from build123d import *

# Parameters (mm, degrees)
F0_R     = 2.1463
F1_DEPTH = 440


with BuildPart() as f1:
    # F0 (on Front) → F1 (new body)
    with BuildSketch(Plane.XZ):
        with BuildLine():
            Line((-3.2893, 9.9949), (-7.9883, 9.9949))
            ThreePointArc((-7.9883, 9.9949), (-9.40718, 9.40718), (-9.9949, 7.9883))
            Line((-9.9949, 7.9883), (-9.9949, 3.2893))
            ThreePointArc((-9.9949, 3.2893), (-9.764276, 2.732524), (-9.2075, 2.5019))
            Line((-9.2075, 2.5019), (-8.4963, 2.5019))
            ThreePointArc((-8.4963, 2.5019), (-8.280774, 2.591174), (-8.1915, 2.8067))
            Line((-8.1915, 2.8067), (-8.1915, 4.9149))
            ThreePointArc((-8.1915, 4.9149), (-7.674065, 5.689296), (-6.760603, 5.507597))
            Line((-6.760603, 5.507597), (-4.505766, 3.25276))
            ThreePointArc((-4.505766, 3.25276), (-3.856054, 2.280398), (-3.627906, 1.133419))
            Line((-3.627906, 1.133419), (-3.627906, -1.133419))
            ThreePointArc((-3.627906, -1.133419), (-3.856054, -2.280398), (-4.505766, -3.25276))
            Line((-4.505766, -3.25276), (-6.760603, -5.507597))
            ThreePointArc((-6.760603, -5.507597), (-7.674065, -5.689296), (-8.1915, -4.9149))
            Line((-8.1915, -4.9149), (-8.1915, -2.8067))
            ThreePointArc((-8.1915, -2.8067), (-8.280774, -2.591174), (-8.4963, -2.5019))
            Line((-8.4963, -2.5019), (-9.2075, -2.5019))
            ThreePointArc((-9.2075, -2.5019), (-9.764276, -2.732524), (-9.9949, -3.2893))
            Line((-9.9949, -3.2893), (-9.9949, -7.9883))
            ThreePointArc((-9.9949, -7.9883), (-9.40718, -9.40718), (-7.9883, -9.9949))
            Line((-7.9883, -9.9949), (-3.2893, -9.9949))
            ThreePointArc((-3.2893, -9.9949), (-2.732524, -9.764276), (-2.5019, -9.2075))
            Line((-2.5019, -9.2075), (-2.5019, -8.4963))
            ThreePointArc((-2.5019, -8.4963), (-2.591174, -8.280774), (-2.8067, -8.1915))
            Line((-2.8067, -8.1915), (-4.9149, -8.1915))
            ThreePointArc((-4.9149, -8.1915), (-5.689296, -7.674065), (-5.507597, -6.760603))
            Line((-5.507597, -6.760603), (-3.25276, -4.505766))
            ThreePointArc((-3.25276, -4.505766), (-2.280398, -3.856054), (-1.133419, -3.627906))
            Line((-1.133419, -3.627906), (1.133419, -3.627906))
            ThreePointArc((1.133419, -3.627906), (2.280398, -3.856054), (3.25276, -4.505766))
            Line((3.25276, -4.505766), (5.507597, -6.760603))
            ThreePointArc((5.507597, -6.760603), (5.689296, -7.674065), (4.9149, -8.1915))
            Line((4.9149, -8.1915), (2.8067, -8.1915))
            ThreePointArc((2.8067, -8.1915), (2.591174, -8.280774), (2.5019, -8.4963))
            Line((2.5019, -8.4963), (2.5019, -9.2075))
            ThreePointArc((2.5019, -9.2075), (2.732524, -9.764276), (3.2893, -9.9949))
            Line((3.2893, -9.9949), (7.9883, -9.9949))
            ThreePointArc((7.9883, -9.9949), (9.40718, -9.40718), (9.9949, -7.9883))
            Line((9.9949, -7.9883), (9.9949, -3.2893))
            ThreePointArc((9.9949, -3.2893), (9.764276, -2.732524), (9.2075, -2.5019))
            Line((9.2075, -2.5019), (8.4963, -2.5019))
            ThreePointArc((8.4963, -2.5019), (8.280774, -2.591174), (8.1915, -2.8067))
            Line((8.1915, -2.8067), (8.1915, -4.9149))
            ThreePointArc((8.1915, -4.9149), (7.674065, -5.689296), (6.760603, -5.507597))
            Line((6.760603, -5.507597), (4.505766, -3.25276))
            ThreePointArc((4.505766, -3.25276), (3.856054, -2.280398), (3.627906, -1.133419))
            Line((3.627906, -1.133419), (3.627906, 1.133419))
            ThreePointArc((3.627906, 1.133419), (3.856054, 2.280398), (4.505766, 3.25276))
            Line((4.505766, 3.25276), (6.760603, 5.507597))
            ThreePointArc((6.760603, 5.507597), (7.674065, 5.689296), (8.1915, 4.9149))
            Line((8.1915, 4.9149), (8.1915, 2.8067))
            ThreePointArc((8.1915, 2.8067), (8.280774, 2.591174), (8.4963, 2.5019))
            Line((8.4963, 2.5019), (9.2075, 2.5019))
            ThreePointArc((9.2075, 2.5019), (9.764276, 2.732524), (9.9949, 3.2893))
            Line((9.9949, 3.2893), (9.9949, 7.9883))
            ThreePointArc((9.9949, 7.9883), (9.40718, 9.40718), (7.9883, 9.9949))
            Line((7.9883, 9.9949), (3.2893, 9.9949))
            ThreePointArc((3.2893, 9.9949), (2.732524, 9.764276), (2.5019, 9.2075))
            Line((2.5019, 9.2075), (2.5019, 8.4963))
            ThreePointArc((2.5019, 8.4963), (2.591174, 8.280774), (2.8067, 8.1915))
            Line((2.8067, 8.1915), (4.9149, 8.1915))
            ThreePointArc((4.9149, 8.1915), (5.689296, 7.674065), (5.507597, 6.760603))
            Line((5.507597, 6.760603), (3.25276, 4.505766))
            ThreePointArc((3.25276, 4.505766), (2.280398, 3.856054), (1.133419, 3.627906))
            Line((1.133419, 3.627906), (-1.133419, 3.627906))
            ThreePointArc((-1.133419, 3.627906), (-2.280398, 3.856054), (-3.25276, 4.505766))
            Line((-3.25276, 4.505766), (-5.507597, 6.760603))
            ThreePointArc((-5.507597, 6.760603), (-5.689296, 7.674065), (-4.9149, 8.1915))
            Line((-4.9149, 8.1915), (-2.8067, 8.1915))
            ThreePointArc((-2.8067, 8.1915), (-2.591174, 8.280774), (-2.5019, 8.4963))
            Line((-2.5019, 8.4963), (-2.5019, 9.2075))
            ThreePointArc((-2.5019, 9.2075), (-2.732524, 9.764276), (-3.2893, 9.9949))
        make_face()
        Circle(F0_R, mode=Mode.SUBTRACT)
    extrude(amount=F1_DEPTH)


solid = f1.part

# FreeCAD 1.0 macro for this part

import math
import FreeCAD as App
import Part
import Sketcher

V = App.Vector
Q = App.Units.Quantity

doc = App.newDocument("Part")
body = doc.addObject("PartDesign::Body", "Body")

sketch1 = body.newObject("Sketcher::SketchObject", "Sketch")
sketch1.AttachmentSupport = (doc.getObject("XZ_Plane"), [""])
sketch1.MapMode = "FlatFace"
sketch1.addGeometry([
    Part.LineSegment(V(-3.29, 9.99, 0), V(-7.99, 9.99, 0)),
    Part.ArcOfCircle(Part.Circle(V(-7.99, 7.99, 0), V(0, 0, 1), 2.01), math.radians(90), math.radians(180)),
    Part.LineSegment(V(-9.99, 7.99, 0), V(-9.99, 3.29, 0)),
    Part.ArcOfCircle(Part.Circle(V(-9.21, 3.29, 0), V(0, 0, 1), 0.79), math.radians(180), math.radians(270)),
    Part.LineSegment(V(-9.21, 2.5, 0), V(-8.5, 2.5, 0)),
    Part.ArcOfCircle(Part.Circle(V(-8.5, 2.81, 0), V(0, 0, 1), 0.3), math.radians(-90), math.radians(0)),
    Part.LineSegment(V(-8.19, 2.81, 0), V(-8.19, 4.91, 0)),
    Part.ArcOfCircle(Part.Circle(V(-7.35, 4.91, 0), V(0, 0, 1), 0.84), math.radians(45), math.radians(180)),
    Part.LineSegment(V(-6.76, 5.51, 0), V(-4.51, 3.25, 0)),
    Part.ArcOfCircle(Part.Circle(V(-6.63, 1.13, 0), V(0, 0, 1), 3), math.radians(0), math.radians(45)),
    Part.LineSegment(V(-3.63, 1.13, 0), V(-3.63, -1.13, 0)),
    Part.ArcOfCircle(Part.Circle(V(-6.63, -1.13, 0), V(0, 0, 1), 3), math.radians(-45), math.radians(0)),
    Part.LineSegment(V(-4.51, -3.25, 0), V(-6.76, -5.51, 0)),
    Part.ArcOfCircle(Part.Circle(V(-7.35, -4.91, 0), V(0, 0, 1), 0.84), math.radians(180), math.radians(315)),
    Part.LineSegment(V(-8.19, -4.91, 0), V(-8.19, -2.81, 0)),
    Part.ArcOfCircle(Part.Circle(V(-8.5, -2.81, 0), V(0, 0, 1), 0.3), math.radians(0), math.radians(90)),
    Part.LineSegment(V(-8.5, -2.5, 0), V(-9.21, -2.5, 0)),
    Part.ArcOfCircle(Part.Circle(V(-9.21, -3.29, 0), V(0, 0, 1), 0.79), math.radians(90), math.radians(180)),
    Part.LineSegment(V(-9.99, -3.29, 0), V(-9.99, -7.99, 0)),
    Part.ArcOfCircle(Part.Circle(V(-7.99, -7.99, 0), V(0, 0, 1), 2.01), math.radians(-180), math.radians(-90)),
    Part.LineSegment(V(-7.99, -9.99, 0), V(-3.29, -9.99, 0)),
    Part.ArcOfCircle(Part.Circle(V(-3.29, -9.21, 0), V(0, 0, 1), 0.79), math.radians(-90), math.radians(0)),
    Part.LineSegment(V(-2.5, -9.21, 0), V(-2.5, -8.5, 0)),
    Part.ArcOfCircle(Part.Circle(V(-2.81, -8.5, 0), V(0, 0, 1), 0.3), math.radians(0), math.radians(90)),
    Part.LineSegment(V(-2.81, -8.19, 0), V(-4.91, -8.19, 0)),
    Part.ArcOfCircle(Part.Circle(V(-4.91, -7.35, 0), V(0, 0, 1), 0.84), math.radians(135), math.radians(270)),
    Part.LineSegment(V(-5.51, -6.76, 0), V(-3.25, -4.51, 0)),
    Part.ArcOfCircle(Part.Circle(V(-1.13, -6.63, 0), V(0, 0, 1), 3), math.radians(90), math.radians(135)),
    Part.LineSegment(V(-1.13, -3.63, 0), V(1.13, -3.63, 0)),
    Part.ArcOfCircle(Part.Circle(V(1.13, -6.63, 0), V(0, 0, 1), 3), math.radians(45), math.radians(90)),
    Part.LineSegment(V(3.25, -4.51, 0), V(5.51, -6.76, 0)),
    Part.ArcOfCircle(Part.Circle(V(4.91, -7.35, 0), V(0, 0, 1), 0.84), math.radians(-90), math.radians(45)),
    Part.LineSegment(V(4.91, -8.19, 0), V(2.81, -8.19, 0)),
    Part.ArcOfCircle(Part.Circle(V(2.81, -8.5, 0), V(0, 0, 1), 0.3), math.radians(90), math.radians(180)),
    Part.LineSegment(V(2.5, -8.5, 0), V(2.5, -9.21, 0)),
    Part.ArcOfCircle(Part.Circle(V(3.29, -9.21, 0), V(0, 0, 1), 0.79), math.radians(180), math.radians(270)),
    Part.LineSegment(V(3.29, -9.99, 0), V(7.99, -9.99, 0)),
    Part.ArcOfCircle(Part.Circle(V(7.99, -7.99, 0), V(0, 0, 1), 2.01), math.radians(-90), math.radians(0)),
    Part.LineSegment(V(9.99, -7.99, 0), V(9.99, -3.29, 0)),
    Part.ArcOfCircle(Part.Circle(V(9.21, -3.29, 0), V(0, 0, 1), 0.79), math.radians(0), math.radians(90)),
    Part.LineSegment(V(9.21, -2.5, 0), V(8.5, -2.5, 0)),
    Part.ArcOfCircle(Part.Circle(V(8.5, -2.81, 0), V(0, 0, 1), 0.3), math.radians(90), math.radians(180)),
    Part.LineSegment(V(8.19, -2.81, 0), V(8.19, -4.91, 0)),
    Part.ArcOfCircle(Part.Circle(V(7.35, -4.91, 0), V(0, 0, 1), 0.84), math.radians(-135), math.radians(0)),
    Part.LineSegment(V(6.76, -5.51, 0), V(4.51, -3.25, 0)),
    Part.ArcOfCircle(Part.Circle(V(6.63, -1.13, 0), V(0, 0, 1), 3), math.radians(180), math.radians(225)),
    Part.LineSegment(V(3.63, -1.13, 0), V(3.63, 1.13, 0)),
    Part.ArcOfCircle(Part.Circle(V(6.63, 1.13, 0), V(0, 0, 1), 3), math.radians(135), math.radians(180)),
    Part.LineSegment(V(4.51, 3.25, 0), V(6.76, 5.51, 0)),
    Part.ArcOfCircle(Part.Circle(V(7.35, 4.91, 0), V(0, 0, 1), 0.84), math.radians(0), math.radians(135)),
    Part.LineSegment(V(8.19, 4.91, 0), V(8.19, 2.81, 0)),
    Part.ArcOfCircle(Part.Circle(V(8.5, 2.81, 0), V(0, 0, 1), 0.3), math.radians(-180), math.radians(-90)),
    Part.LineSegment(V(8.5, 2.5, 0), V(9.21, 2.5, 0)),
    Part.ArcOfCircle(Part.Circle(V(9.21, 3.29, 0), V(0, 0, 1), 0.79), math.radians(-90), math.radians(0)),
    Part.LineSegment(V(9.99, 3.29, 0), V(9.99, 7.99, 0)),
    Part.ArcOfCircle(Part.Circle(V(7.99, 7.99, 0), V(0, 0, 1), 2.01), math.radians(0), math.radians(90)),
    Part.LineSegment(V(7.99, 9.99, 0), V(3.29, 9.99, 0)),
    Part.ArcOfCircle(Part.Circle(V(3.29, 9.21, 0), V(0, 0, 1), 0.79), math.radians(90), math.radians(180)),
    Part.LineSegment(V(2.5, 9.21, 0), V(2.5, 8.5, 0)),
    Part.ArcOfCircle(Part.Circle(V(2.81, 8.5, 0), V(0, 0, 1), 0.3), math.radians(-180), math.radians(-90)),
    Part.LineSegment(V(2.81, 8.19, 0), V(4.91, 8.19, 0)),
    Part.ArcOfCircle(Part.Circle(V(4.91, 7.35, 0), V(0, 0, 1), 0.84), math.radians(-45), math.radians(90)),
    Part.LineSegment(V(5.51, 6.76, 0), V(3.25, 4.51, 0)),
    Part.ArcOfCircle(Part.Circle(V(1.13, 6.63, 0), V(0, 0, 1), 3), math.radians(-90), math.radians(-45)),
    Part.LineSegment(V(1.13, 3.63, 0), V(-1.13, 3.63, 0)),
    Part.ArcOfCircle(Part.Circle(V(-1.13, 6.63, 0), V(0, 0, 1), 3), math.radians(-135), math.radians(-90)),
    Part.LineSegment(V(-3.25, 4.51, 0), V(-5.51, 6.76, 0)),
    Part.ArcOfCircle(Part.Circle(V(-4.91, 7.35, 0), V(0, 0, 1), 0.84), math.radians(90), math.radians(225)),
    Part.LineSegment(V(-4.91, 8.19, 0), V(-2.81, 8.19, 0)),
    Part.ArcOfCircle(Part.Circle(V(-2.81, 8.5, 0), V(0, 0, 1), 0.3), math.radians(-90), math.radians(0)),
    Part.LineSegment(V(-2.5, 8.5, 0), V(-2.5, 9.21, 0)),
    Part.ArcOfCircle(Part.Circle(V(-3.29, 9.21, 0), V(0, 0, 1), 0.79), math.radians(0), math.radians(90)),
    Part.Circle(V(0, 0, 0), V(0, 0, 1), 2.15),
], False)
sketch1.addConstraint([
    Sketcher.Constraint("Tangent", 0, 2, 1, 1),
    Sketcher.Constraint("Tangent", 1, 2, 2, 1),
    Sketcher.Constraint("Tangent", 2, 2, 3, 1),
    Sketcher.Constraint("Tangent", 3, 2, 4, 1),
    Sketcher.Constraint("Tangent", 4, 2, 5, 1),
    Sketcher.Constraint("Tangent", 5, 2, 6, 1),
    Sketcher.Constraint("Tangent", 6, 2, 7, 2),
    Sketcher.Constraint("Tangent", 7, 1, 8, 1),
    Sketcher.Constraint("Tangent", 8, 2, 9, 2),
    Sketcher.Constraint("Tangent", 9, 1, 10, 1),
    Sketcher.Constraint("Tangent", 10, 2, 11, 2),
    Sketcher.Constraint("Tangent", 11, 1, 12, 1),
    Sketcher.Constraint("Tangent", 12, 2, 13, 2),
    Sketcher.Constraint("Tangent", 13, 1, 14, 1),
    Sketcher.Constraint("Tangent", 14, 2, 15, 1),
    Sketcher.Constraint("Tangent", 15, 2, 16, 1),
    Sketcher.Constraint("Tangent", 16, 2, 17, 1),
    Sketcher.Constraint("Tangent", 17, 2, 18, 1),
    Sketcher.Constraint("Tangent", 18, 2, 19, 1),
    Sketcher.Constraint("Tangent", 19, 2, 20, 1),
    Sketcher.Constraint("Tangent", 20, 2, 21, 1),
    Sketcher.Constraint("Tangent", 21, 2, 22, 1),
    Sketcher.Constraint("Tangent", 22, 2, 23, 1),
    Sketcher.Constraint("Tangent", 23, 2, 24, 1),
    Sketcher.Constraint("Tangent", 24, 2, 25, 2),
    Sketcher.Constraint("Tangent", 25, 1, 26, 1),
    Sketcher.Constraint("Tangent", 26, 2, 27, 2),
    Sketcher.Constraint("Tangent", 27, 1, 28, 1),
    Sketcher.Constraint("Tangent", 28, 2, 29, 2),
    Sketcher.Constraint("Tangent", 29, 1, 30, 1),
    Sketcher.Constraint("Tangent", 30, 2, 31, 2),
    Sketcher.Constraint("Tangent", 31, 1, 32, 1),
    Sketcher.Constraint("Tangent", 32, 2, 33, 1),
    Sketcher.Constraint("Tangent", 33, 2, 34, 1),
    Sketcher.Constraint("Tangent", 34, 2, 35, 1),
    Sketcher.Constraint("Tangent", 35, 2, 36, 1),
    Sketcher.Constraint("Tangent", 36, 2, 37, 1),
    Sketcher.Constraint("Tangent", 37, 2, 38, 1),
    Sketcher.Constraint("Tangent", 38, 2, 39, 1),
    Sketcher.Constraint("Tangent", 39, 2, 40, 1),
    Sketcher.Constraint("Tangent", 40, 2, 41, 1),
    Sketcher.Constraint("Tangent", 41, 2, 42, 1),
    Sketcher.Constraint("Tangent", 42, 2, 43, 2),
    Sketcher.Constraint("Tangent", 43, 1, 44, 1),
    Sketcher.Constraint("Tangent", 44, 2, 45, 2),
    Sketcher.Constraint("Tangent", 45, 1, 46, 1),
    Sketcher.Constraint("Tangent", 46, 2, 47, 2),
    Sketcher.Constraint("Tangent", 47, 1, 48, 1),
    Sketcher.Constraint("Tangent", 48, 2, 49, 2),
    Sketcher.Constraint("Tangent", 49, 1, 50, 1),
    Sketcher.Constraint("Tangent", 50, 2, 51, 1),
    Sketcher.Constraint("Tangent", 51, 2, 52, 1),
    Sketcher.Constraint("Tangent", 52, 2, 53, 1),
    Sketcher.Constraint("Tangent", 53, 2, 54, 1),
    Sketcher.Constraint("Tangent", 54, 2, 55, 1),
    Sketcher.Constraint("Tangent", 55, 2, 56, 1),
    Sketcher.Constraint("Tangent", 56, 2, 57, 1),
    Sketcher.Constraint("Tangent", 57, 2, 58, 1),
    Sketcher.Constraint("Tangent", 58, 2, 59, 1),
    Sketcher.Constraint("Tangent", 59, 2, 60, 1),
    Sketcher.Constraint("Tangent", 60, 2, 61, 2),
    Sketcher.Constraint("Tangent", 61, 1, 62, 1),
    Sketcher.Constraint("Tangent", 62, 2, 63, 2),
    Sketcher.Constraint("Tangent", 63, 1, 64, 1),
    Sketcher.Constraint("Tangent", 64, 2, 65, 2),
    Sketcher.Constraint("Tangent", 65, 1, 66, 1),
    Sketcher.Constraint("Tangent", 66, 2, 67, 2),
    Sketcher.Constraint("Tangent", 67, 1, 68, 1),
    Sketcher.Constraint("Tangent", 68, 2, 69, 1),
    Sketcher.Constraint("Tangent", 69, 2, 70, 1),
    Sketcher.Constraint("Tangent", 70, 2, 71, 1),
    Sketcher.Constraint("Tangent", 71, 2, 0, 1),
    Sketcher.Constraint("Horizontal", 0),
    Sketcher.Constraint("Vertical", 2),
    Sketcher.Constraint("Horizontal", 4),
    Sketcher.Constraint("Vertical", 6),
    Sketcher.Constraint("Vertical", 10),
    Sketcher.Constraint("Vertical", 14),
    Sketcher.Constraint("Horizontal", 16),
    Sketcher.Constraint("Vertical", 18),
    Sketcher.Constraint("Horizontal", 20),
    Sketcher.Constraint("Vertical", 22),
    Sketcher.Constraint("Horizontal", 24),
    Sketcher.Constraint("Horizontal", 28),
    Sketcher.Constraint("Horizontal", 32),
    Sketcher.Constraint("Vertical", 34),
    Sketcher.Constraint("Horizontal", 36),
    Sketcher.Constraint("Vertical", 38),
    Sketcher.Constraint("Horizontal", 40),
    Sketcher.Constraint("Vertical", 42),
    Sketcher.Constraint("Vertical", 46),
    Sketcher.Constraint("Vertical", 50),
    Sketcher.Constraint("Horizontal", 52),
    Sketcher.Constraint("Vertical", 54),
    Sketcher.Constraint("Horizontal", 56),
    Sketcher.Constraint("Vertical", 58),
    Sketcher.Constraint("Horizontal", 60),
    Sketcher.Constraint("Horizontal", 64),
    Sketcher.Constraint("Horizontal", 68),
    Sketcher.Constraint("Vertical", 70),
    Sketcher.Constraint("Coincident", 72, 3, -1, 1),
    Sketcher.Constraint("Equal", 9, 11),
    Sketcher.Constraint("Equal", 7, 13),
    Sketcher.Constraint("Equal", 5, 15),
    Sketcher.Constraint("Equal", 3, 17),
    Sketcher.Constraint("Equal", 1, 19),
    Sketcher.Constraint("Equal", 17, 21),
    Sketcher.Constraint("Equal", 15, 23),
    Sketcher.Constraint("Equal", 13, 25),
    Sketcher.Constraint("Equal", 11, 27),
    Sketcher.Constraint("Equal", 27, 29),
    Sketcher.Constraint("Equal", 25, 31),
    Sketcher.Constraint("Equal", 23, 33),
    Sketcher.Constraint("Equal", 21, 35),
    Sketcher.Constraint("Equal", 19, 37),
    Sketcher.Constraint("Equal", 35, 39),
    Sketcher.Constraint("Equal", 33, 41),
    Sketcher.Constraint("Equal", 31, 43),
    Sketcher.Constraint("Equal", 29, 45),
    Sketcher.Constraint("Equal", 45, 47),
    Sketcher.Constraint("Equal", 43, 49),
    Sketcher.Constraint("Equal", 41, 51),
    Sketcher.Constraint("Equal", 39, 53),
    Sketcher.Constraint("Equal", 37, 55),
    Sketcher.Constraint("Equal", 53, 57),
    Sketcher.Constraint("Equal", 51, 59),
    Sketcher.Constraint("Equal", 49, 61),
    Sketcher.Constraint("Equal", 47, 63),
    Sketcher.Constraint("Equal", 63, 65),
    Sketcher.Constraint("Equal", 61, 67),
    Sketcher.Constraint("Equal", 59, 69),
    Sketcher.Constraint("Equal", 57, 71),
    Sketcher.Constraint("Symmetric", 1, 3, 37, 3, -1, 1),
    Sketcher.Constraint("Symmetric", 5, 3, 41, 3, -1, 1),
    Sketcher.Constraint("Symmetric", 9, 3, 45, 3, -1, 1),
    Sketcher.Constraint("Symmetric", 13, 3, 49, 3, -1, 1),
    Sketcher.Constraint("Symmetric", 17, 3, 53, 3, -1, 1),
    Sketcher.Constraint("Symmetric", 21, 3, 57, 3, -1, 1),
    Sketcher.Constraint("Symmetric", 25, 3, 61, 3, -1, 1),
    Sketcher.Constraint("Symmetric", 27, 3, 63, 3, -1, 1),
    Sketcher.Constraint("Symmetric", 31, 3, 67, 3, -1, 1),
    Sketcher.Constraint("Symmetric", 25, 3, 31, 3, -2),
    Sketcher.Constraint("Symmetric", 21, 3, 35, 3, -2),
    Sketcher.Constraint("Symmetric", 17, 3, 39, 3, -2),
    Sketcher.Constraint("Symmetric", 13, 3, 43, 3, -2),
    Sketcher.Constraint("Symmetric", 8, 2, 47, 1, -2),
    Sketcher.Constraint("Perpendicular", 8, 12),
    Sketcher.Constraint("Parallel", 12, 26),
    Sketcher.Constraint("Perpendicular", 26, 30),
    Sketcher.Constraint("Perpendicular", 44, 48),
    Sketcher.Constraint("Perpendicular", 62, 66),
    Sketcher.Constraint("Vertical", 23, 3, 69, 3),
    Sketcher.Constraint("Equal", 56, 2),
    Sketcher.Constraint("Equal", 68, 6),
    Sketcher.Constraint("Equal", 64, 10),
    Sketcher.Constraint("Equal", 52, 22),
    Sketcher.Constraint("Equal", 12, 26),
    Sketcher.Constraint("Diameter", 72, Q("0.169 in")),
    Sketcher.Constraint("Radius", 1, Q("0.0790001 in")),
    Sketcher.Constraint("Radius", 3, Q("0.031 in")),
    Sketcher.Constraint("Radius", 5, Q("0.012 in")),
    Sketcher.Constraint("Radius", 7, Q("0.033 in")),
    Sketcher.Constraint("Radius", 9, Q("0.1179999 in")),
    Sketcher.Constraint("DistanceX", 0, 2, 0, 1, Q("0.185 in")),
    Sketcher.Constraint("DistanceX", 4, 1, 4, 2, Q("0.028 in")),
    Sketcher.Constraint("DistanceX", 24, 2, 24, 1, Q("0.083 in")),
    Sketcher.Constraint("DistanceX", 1, 3, -1, 1, Q("0.3144999 in")),
    Sketcher.Constraint("Distance", 8, Q("3.188821 mm")),
])
pad1 = body.newObject("PartDesign::Pad", "Pad")
pad1.Profile = sketch1
pad1.Length = 440

doc.recompute()
